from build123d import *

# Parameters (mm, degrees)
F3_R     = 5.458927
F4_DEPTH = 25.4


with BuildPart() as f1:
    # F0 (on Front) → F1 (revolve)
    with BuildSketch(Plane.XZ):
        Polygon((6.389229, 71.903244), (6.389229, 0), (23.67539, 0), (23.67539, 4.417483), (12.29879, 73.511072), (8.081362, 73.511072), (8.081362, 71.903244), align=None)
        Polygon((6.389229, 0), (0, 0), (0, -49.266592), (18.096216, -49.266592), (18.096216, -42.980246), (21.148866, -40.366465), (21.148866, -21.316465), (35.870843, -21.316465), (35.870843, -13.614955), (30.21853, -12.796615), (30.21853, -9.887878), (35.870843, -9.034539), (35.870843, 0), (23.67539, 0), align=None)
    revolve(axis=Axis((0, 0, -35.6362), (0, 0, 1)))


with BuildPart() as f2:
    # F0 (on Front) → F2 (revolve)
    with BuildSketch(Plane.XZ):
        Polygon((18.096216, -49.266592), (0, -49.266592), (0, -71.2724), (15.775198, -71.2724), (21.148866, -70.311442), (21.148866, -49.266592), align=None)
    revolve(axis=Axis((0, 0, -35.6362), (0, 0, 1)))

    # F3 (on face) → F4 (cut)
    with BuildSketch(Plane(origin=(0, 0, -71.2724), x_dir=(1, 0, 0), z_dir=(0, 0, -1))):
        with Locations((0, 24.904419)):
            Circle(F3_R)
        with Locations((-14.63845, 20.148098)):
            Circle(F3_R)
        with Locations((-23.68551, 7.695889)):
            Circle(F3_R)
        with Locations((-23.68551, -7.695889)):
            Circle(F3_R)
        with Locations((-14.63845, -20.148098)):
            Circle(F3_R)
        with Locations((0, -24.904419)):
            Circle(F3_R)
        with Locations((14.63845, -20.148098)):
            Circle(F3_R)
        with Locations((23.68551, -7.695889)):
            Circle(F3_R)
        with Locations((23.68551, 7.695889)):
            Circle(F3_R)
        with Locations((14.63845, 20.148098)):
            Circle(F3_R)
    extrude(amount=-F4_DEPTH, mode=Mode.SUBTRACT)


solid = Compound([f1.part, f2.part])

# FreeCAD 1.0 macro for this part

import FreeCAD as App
import Part
import Sketcher
from FreeCAD import Vector
Q = App.Units.Quantity

doc = App.newDocument("Part")
body = doc.addObject("PartDesign::Body", "Body")

sketch1 = doc.addObject("Sketcher::SketchObject", "Sketch")
body.addObject(sketch1)
sketch1.AttachmentSupport = (doc.XZ_Plane, [""])
sketch1.MapMode = "FlatFace"
sketch1.addGeometry(Part.LineSegment(Vector(6.389229, 71.903244, 0), Vector(6.389229, 0, 0)), False)
sketch1.addGeometry(Part.LineSegment(Vector(6.389229, 0, 0), Vector(0, 0, 0)), False)
sketch1.addGeometry(Part.LineSegment(Vector(0, 0, 0), Vector(0, -49.266592, 0)), False)
sketch1.addGeometry(Part.LineSegment(Vector(0, -49.266592, 0), Vector(18.096216, -49.266592, 0)), False)
sketch1.addGeometry(Part.LineSegment(Vector(18.096216, -49.266592, 0), Vector(18.096216, -42.980246, 0)), False)
sketch1.addGeometry(Part.LineSegment(Vector(18.096216, -42.980246, 0), Vector(21.148866, -40.366465, 0)), False)
sketch1.addGeometry(Part.LineSegment(Vector(21.148866, -40.366465, 0), Vector(21.148866, -21.316465, 0)), False)
sketch1.addGeometry(Part.LineSegment(Vector(21.148866, -21.316465, 0), Vector(35.870843, -21.316465, 0)), False)
sketch1.addGeometry(Part.LineSegment(Vector(35.870843, -21.316465, 0), Vector(35.870843, -13.614955, 0)), False)
sketch1.addGeometry(Part.LineSegment(Vector(35.870843, -13.614955, 0), Vector(30.21853, -12.796615, 0)), False)
sketch1.addGeometry(Part.LineSegment(Vector(30.21853, -12.796615, 0), Vector(30.21853, -9.887878, 0)), False)
sketch1.addGeometry(Part.LineSegment(Vector(30.21853, -9.887878, 0), Vector(35.870843, -9.034539, 0)), False)
sketch1.addGeometry(Part.LineSegment(Vector(35.870843, -9.034539, 0), Vector(35.870843, 0, 0)), False)
sketch1.addGeometry(Part.LineSegment(Vector(35.870843, 0, 0), Vector(23.67539, 0, 0)), False)
sketch1.addGeometry(Part.LineSegment(Vector(23.67539, 0, 0), Vector(23.67539, 4.417483, 0)), False)
sketch1.addGeometry(Part.LineSegment(Vector(23.67539, 4.417483, 0), Vector(12.29879, 73.511072, 0)), False)
sketch1.addGeometry(Part.LineSegment(Vector(12.29879, 73.511072, 0), Vector(8.081362, 73.511072, 0)), False)
sketch1.addGeometry(Part.LineSegment(Vector(8.081362, 73.511072, 0), Vector(8.081362, 71.903244, 0)), False)
sketch1.addGeometry(Part.LineSegment(Vector(8.081362, 71.903244, 0), Vector(6.389229, 71.903244, 0)), False)
sketch1.addConstraint(Sketcher.Constraint("Coincident", 0, 2, 1, 1))
sketch1.addConstraint(Sketcher.Constraint("Coincident", 1, 2, 2, 1))
sketch1.addConstraint(Sketcher.Constraint("Coincident", 2, 2, 3, 1))
sketch1.addConstraint(Sketcher.Constraint("Coincident", 3, 2, 4, 1))
sketch1.addConstraint(Sketcher.Constraint("Coincident", 4, 2, 5, 1))
sketch1.addConstraint(Sketcher.Constraint("Coincident", 5, 2, 6, 1))
sketch1.addConstraint(Sketcher.Constraint("Coincident", 6, 2, 7, 1))
sketch1.addConstraint(Sketcher.Constraint("Coincident", 7, 2, 8, 1))
sketch1.addConstraint(Sketcher.Constraint("Coincident", 8, 2, 9, 1))
sketch1.addConstraint(Sketcher.Constraint("Coincident", 9, 2, 10, 1))
sketch1.addConstraint(Sketcher.Constraint("Coincident", 10, 2, 11, 1))
sketch1.addConstraint(Sketcher.Constraint("Coincident", 11, 2, 12, 1))
sketch1.addConstraint(Sketcher.Constraint("Coincident", 12, 2, 13, 1))
sketch1.addConstraint(Sketcher.Constraint("Coincident", 13, 2, 14, 1))
sketch1.addConstraint(Sketcher.Constraint("Coincident", 14, 2, 15, 1))
sketch1.addConstraint(Sketcher.Constraint("Coincident", 15, 2, 16, 1))
sketch1.addConstraint(Sketcher.Constraint("Coincident", 16, 2, 17, 1))
sketch1.addConstraint(Sketcher.Constraint("Coincident", 17, 2, 18, 1))
sketch1.addConstraint(Sketcher.Constraint("Coincident", 18, 2, 0, 1))
sketch1.addConstraint(Sketcher.Constraint("Vertical", 0))
sketch1.addConstraint(Sketcher.Constraint("Horizontal", 1))
sketch1.addConstraint(Sketcher.Constraint("Vertical", 2))
sketch1.addConstraint(Sketcher.Constraint("Horizontal", 3))
sketch1.addConstraint(Sketcher.Constraint("Vertical", 4))
sketch1.addConstraint(Sketcher.Constraint("Vertical", 6))
sketch1.addConstraint(Sketcher.Constraint("Horizontal", 7))
sketch1.addConstraint(Sketcher.Constraint("Vertical", 8))
sketch1.addConstraint(Sketcher.Constraint("Vertical", 10))
sketch1.addConstraint(Sketcher.Constraint("Vertical", 12))
sketch1.addConstraint(Sketcher.Constraint("Horizontal", 13))
sketch1.addConstraint(Sketcher.Constraint("Vertical", 14))
sketch1.addConstraint(Sketcher.Constraint("Horizontal", 16))
sketch1.addConstraint(Sketcher.Constraint("Vertical", 17))
sketch1.addConstraint(Sketcher.Constraint("Horizontal", 18))
sketch1.addConstraint(Sketcher.Constraint("Coincident", 1, 2, -1, 1))
sketch1.addConstraint(Sketcher.Constraint("PointOnObject", 12, 2, -1))
sketch1.addConstraint(Sketcher.Constraint("Vertical", 8, 2, 11, 2))
sketch1.addConstraint(Sketcher.Constraint("DistanceY", 6, 1, 6, 2, Q("0.75 in")))
sketch1.addConstraint(Sketcher.Constraint("DistanceX", 1, 2, 1, 1, Q("6.389229 mm")))
sketch1.addConstraint(Sketcher.Constraint("DistanceY", 8, 1, 8, 2, Q("7.70151 mm")))
sketch1.addConstraint(Sketcher.Constraint("DistanceY", 12, 1, 12, 2, Q("9.034539 mm")))
sketch1.addConstraint(Sketcher.Constraint("DistanceX", 0, 2, 9, 2, Q("23.829301 mm")))
sketch1.addConstraint(Sketcher.Constraint("DistanceX", 15, 2, 14, 2, Q("11.3766 mm")))
sketch1.addConstraint(Sketcher.Constraint("Distance", 5, Q("4.018771 mm")))
sketch1.addConstraint(Sketcher.Constraint("DistanceX", 3, 1, 3, 2, Q("18.096216 mm")))
sketch1.addConstraint(Sketcher.Constraint("DistanceX", 7, 1, 7, 2, Q("14.721977 mm")))
sketch1.addConstraint(Sketcher.Constraint("DistanceX", 13, 2, 13, 1, Q("12.195453 mm")))
sketch1.addConstraint(Sketcher.Constraint("DistanceX", 16, 2, 16, 1, Q("4.217428 mm")))
sketch1.addConstraint(Sketcher.Constraint("DistanceX", 18, 2, 18, 1, Q("1.692133 mm")))
sketch1.addConstraint(Sketcher.Constraint("DistanceY", 0, 2, 0, 1, Q("71.903244 mm")))
sketch1.addConstraint(Sketcher.Constraint("DistanceY", 2, 2, 2, 1, Q("49.266592 mm")))
sketch1.addConstraint(Sketcher.Constraint("DistanceY", 4, 1, 4, 2, Q("6.286346 mm")))
sketch1.addConstraint(Sketcher.Constraint("DistanceY", 10, 1, 10, 2, Q("2.908737 mm")))
sketch1.addConstraint(Sketcher.Constraint("DistanceY", 14, 1, 14, 2, Q("4.417483 mm")))
sketch1.addConstraint(Sketcher.Constraint("DistanceY", 17, 2, 17, 1, Q("1.607828 mm")))
sketch1.addConstraint(Sketcher.Constraint("DistanceY", 10, 2, -1, 1, Q("9.887878 mm")))
revolution = doc.addObject("PartDesign::Revolution", "Revolution")
body.addObject(revolution)
revolution.Profile = sketch1
revolution.ReferenceAxis = (sketch1, ["V_Axis"])
revolution.Angle = 360
body2 = doc.addObject("PartDesign::Body", "Body001")

sketch2 = doc.addObject("Sketcher::SketchObject", "Sketch001")
body2.addObject(sketch2)
sketch2.AttachmentSupport = (doc.getObject("XZ_Plane001"), [""])
sketch2.MapMode = "FlatFace"
sketch2.addGeometry(Part.LineSegment(Vector(0, -49.266592, 0), Vector(0, -71.2724, 0)), False)
sketch2.addGeometry(Part.LineSegment(Vector(0, -71.2724, 0), Vector(15.775198, -71.2724, 0)), False)
sketch2.addGeometry(Part.LineSegment(Vector(15.775198, -71.2724, 0), Vector(21.148866, -70.311442, 0)), False)
sketch2.addGeometry(Part.LineSegment(Vector(21.148866, -70.311442, 0), Vector(21.148866, -49.266592, 0)), False)
sketch2.addGeometry(Part.LineSegment(Vector(21.148866, -49.266592, 0), Vector(0, -49.266592, 0)), False)
sketch2.addConstraint(Sketcher.Constraint("Coincident", 0, 2, 1, 1))
sketch2.addConstraint(Sketcher.Constraint("Coincident", 1, 2, 2, 1))
sketch2.addConstraint(Sketcher.Constraint("Coincident", 2, 2, 3, 1))
sketch2.addConstraint(Sketcher.Constraint("Coincident", 3, 2, 4, 1))
sketch2.addConstraint(Sketcher.Constraint("Coincident", 4, 2, 0, 1))
sketch2.addConstraint(Sketcher.Constraint("Vertical", 0))
sketch2.addConstraint(Sketcher.Constraint("Horizontal", 1))
sketch2.addConstraint(Sketcher.Constraint("Vertical", 3))
sketch2.addConstraint(Sketcher.Constraint("Horizontal", 4))
sketch2.addConstraint(Sketcher.Constraint("PointOnObject", 0, 2, -2))
sketch2.addConstraint(Sketcher.Constraint("DistanceY", 0, 2, -1, 1, Q("2.806 in")))
sketch2.addConstraint(Sketcher.Constraint("DistanceY", 0, 2, 0, 1, Q("22.005808 mm")))
sketch2.addConstraint(Sketcher.Constraint("DistanceY", 3, 1, 3, 2, Q("21.04485 mm")))
sketch2.addConstraint(Sketcher.Constraint("DistanceX", 1, 1, 1, 2, Q("15.775198 mm")))
sketch2.addConstraint(Sketcher.Constraint("DistanceX", 4, 2, 4, 1, Q("21.148866 mm")))
revolution2 = doc.addObject("PartDesign::Revolution", "Revolution001")
body2.addObject(revolution2)
revolution2.Profile = sketch2
revolution2.ReferenceAxis = (sketch2, ["V_Axis"])
revolution2.Angle = 360

sketch3 = doc.addObject("Sketcher::SketchObject", "Sketch002")
body2.addObject(sketch3)
sketch3.AttachmentSupport = (doc.getObject("XY_Plane001"), [""])
sketch3.MapMode = "FlatFace"
sketch3.AttachmentOffset = App.Placement(Vector(0, 0, -2.806 * 25.4), App.Rotation())
sketch3.addGeometry(Part.Circle(Vector(0, -24.904419, 0), Vector(0, 0, 1), 5.458927), False)
sketch3.addGeometry(Part.Circle(Vector(-14.63845, -20.148098, 0), Vector(0, 0, 1), 5.458927), False)
sketch3.addGeometry(Part.Circle(Vector(-23.68551, -7.695889, 0), Vector(0, 0, 1), 5.458927), False)
sketch3.addGeometry(Part.Circle(Vector(-23.68551, 7.695889, 0), Vector(0, 0, 1), 5.458927), False)
sketch3.addGeometry(Part.Circle(Vector(-14.63845, 20.148098, 0), Vector(0, 0, 1), 5.458927), False)
sketch3.addGeometry(Part.Circle(Vector(0, 24.904419, 0), Vector(0, 0, 1), 5.458927), False)
sketch3.addGeometry(Part.Circle(Vector(14.63845, 20.148098, 0), Vector(0, 0, 1), 5.458927), False)
sketch3.addGeometry(Part.Circle(Vector(23.68551, 7.695889, 0), Vector(0, 0, 1), 5.458927), False)
sketch3.addGeometry(Part.Circle(Vector(23.68551, -7.695889, 0), Vector(0, 0, 1), 5.458927), False)
sketch3.addGeometry(Part.Circle(Vector(14.63845, -20.148098, 0), Vector(0, 0, 1), 5.458927), False)
sketch3.addConstraint(Sketcher.Constraint("Equal", 0, 1))
sketch3.addConstraint(Sketcher.Constraint("Equal", 1, 2))
sketch3.addConstraint(Sketcher.Constraint("Equal", 2, 3))
sketch3.addConstraint(Sketcher.Constraint("Equal", 3, 4))
sketch3.addConstraint(Sketcher.Constraint("Equal", 4, 5))
sketch3.addConstraint(Sketcher.Constraint("Equal", 5, 6))
sketch3.addConstraint(Sketcher.Constraint("Equal", 6, 7))
sketch3.addConstraint(Sketcher.Constraint("Equal", 7, 8))
sketch3.addConstraint(Sketcher.Constraint("Equal", 8, 9))
sketch3.addConstraint(Sketcher.Constraint("Symmetric", 0, 3, 5, 3, -1, 1))
sketch3.addConstraint(Sketcher.Constraint("Symmetric", 1, 3, 6, 3, -1, 1))
sketch3.addConstraint(Sketcher.Constraint("Symmetric", 2, 3, 7, 3, -1, 1))
sketch3.addConstraint(Sketcher.Constraint("Symmetric", 3, 3, 8, 3, -1, 1))
sketch3.addConstraint(Sketcher.Constraint("Symmetric", 4, 3, 9, 3, -1, 1))
sketch3.addConstraint(Sketcher.Constraint("Symmetric", 4, 3, 6, 3, -2))
sketch3.addConstraint(Sketcher.Constraint("Symmetric", 3, 3, 7, 3, -2))
sketch3.addConstraint(Sketcher.Constraint("PointOnObject", 0, 3, -2))
sketch3.addConstraint(Sketcher.Constraint("Diameter", 0, Q("10.917854 mm")))
sketch3.addConstraint(Sketcher.Constraint("DistanceY", 1, 3, -1, 1, Q("20.148098 mm")))
sketch3.addConstraint(Sketcher.Constraint("DistanceX", 4, 3, 6, 3, Q("29.2769 mm")))
sketch3.addConstraint(Sketcher.Constraint("DistanceY", 0, 3, -1, 1, Q("24.904419 mm")))
sketch3.addConstraint(Sketcher.Constraint("DistanceX", 2, 3, -1, 1, Q("23.68551 mm")))
sketch3.addConstraint(Sketcher.Constraint("DistanceY", 2, 3, -1, 1, Q("7.695889 mm")))
pocket1 = doc.addObject("PartDesign::Pocket", "Pocket")
body2.addObject(pocket1)
pocket1.Profile = sketch3
pocket1.Length = Q("1 in")
pocket1.Reversed = True

doc.recompute()
